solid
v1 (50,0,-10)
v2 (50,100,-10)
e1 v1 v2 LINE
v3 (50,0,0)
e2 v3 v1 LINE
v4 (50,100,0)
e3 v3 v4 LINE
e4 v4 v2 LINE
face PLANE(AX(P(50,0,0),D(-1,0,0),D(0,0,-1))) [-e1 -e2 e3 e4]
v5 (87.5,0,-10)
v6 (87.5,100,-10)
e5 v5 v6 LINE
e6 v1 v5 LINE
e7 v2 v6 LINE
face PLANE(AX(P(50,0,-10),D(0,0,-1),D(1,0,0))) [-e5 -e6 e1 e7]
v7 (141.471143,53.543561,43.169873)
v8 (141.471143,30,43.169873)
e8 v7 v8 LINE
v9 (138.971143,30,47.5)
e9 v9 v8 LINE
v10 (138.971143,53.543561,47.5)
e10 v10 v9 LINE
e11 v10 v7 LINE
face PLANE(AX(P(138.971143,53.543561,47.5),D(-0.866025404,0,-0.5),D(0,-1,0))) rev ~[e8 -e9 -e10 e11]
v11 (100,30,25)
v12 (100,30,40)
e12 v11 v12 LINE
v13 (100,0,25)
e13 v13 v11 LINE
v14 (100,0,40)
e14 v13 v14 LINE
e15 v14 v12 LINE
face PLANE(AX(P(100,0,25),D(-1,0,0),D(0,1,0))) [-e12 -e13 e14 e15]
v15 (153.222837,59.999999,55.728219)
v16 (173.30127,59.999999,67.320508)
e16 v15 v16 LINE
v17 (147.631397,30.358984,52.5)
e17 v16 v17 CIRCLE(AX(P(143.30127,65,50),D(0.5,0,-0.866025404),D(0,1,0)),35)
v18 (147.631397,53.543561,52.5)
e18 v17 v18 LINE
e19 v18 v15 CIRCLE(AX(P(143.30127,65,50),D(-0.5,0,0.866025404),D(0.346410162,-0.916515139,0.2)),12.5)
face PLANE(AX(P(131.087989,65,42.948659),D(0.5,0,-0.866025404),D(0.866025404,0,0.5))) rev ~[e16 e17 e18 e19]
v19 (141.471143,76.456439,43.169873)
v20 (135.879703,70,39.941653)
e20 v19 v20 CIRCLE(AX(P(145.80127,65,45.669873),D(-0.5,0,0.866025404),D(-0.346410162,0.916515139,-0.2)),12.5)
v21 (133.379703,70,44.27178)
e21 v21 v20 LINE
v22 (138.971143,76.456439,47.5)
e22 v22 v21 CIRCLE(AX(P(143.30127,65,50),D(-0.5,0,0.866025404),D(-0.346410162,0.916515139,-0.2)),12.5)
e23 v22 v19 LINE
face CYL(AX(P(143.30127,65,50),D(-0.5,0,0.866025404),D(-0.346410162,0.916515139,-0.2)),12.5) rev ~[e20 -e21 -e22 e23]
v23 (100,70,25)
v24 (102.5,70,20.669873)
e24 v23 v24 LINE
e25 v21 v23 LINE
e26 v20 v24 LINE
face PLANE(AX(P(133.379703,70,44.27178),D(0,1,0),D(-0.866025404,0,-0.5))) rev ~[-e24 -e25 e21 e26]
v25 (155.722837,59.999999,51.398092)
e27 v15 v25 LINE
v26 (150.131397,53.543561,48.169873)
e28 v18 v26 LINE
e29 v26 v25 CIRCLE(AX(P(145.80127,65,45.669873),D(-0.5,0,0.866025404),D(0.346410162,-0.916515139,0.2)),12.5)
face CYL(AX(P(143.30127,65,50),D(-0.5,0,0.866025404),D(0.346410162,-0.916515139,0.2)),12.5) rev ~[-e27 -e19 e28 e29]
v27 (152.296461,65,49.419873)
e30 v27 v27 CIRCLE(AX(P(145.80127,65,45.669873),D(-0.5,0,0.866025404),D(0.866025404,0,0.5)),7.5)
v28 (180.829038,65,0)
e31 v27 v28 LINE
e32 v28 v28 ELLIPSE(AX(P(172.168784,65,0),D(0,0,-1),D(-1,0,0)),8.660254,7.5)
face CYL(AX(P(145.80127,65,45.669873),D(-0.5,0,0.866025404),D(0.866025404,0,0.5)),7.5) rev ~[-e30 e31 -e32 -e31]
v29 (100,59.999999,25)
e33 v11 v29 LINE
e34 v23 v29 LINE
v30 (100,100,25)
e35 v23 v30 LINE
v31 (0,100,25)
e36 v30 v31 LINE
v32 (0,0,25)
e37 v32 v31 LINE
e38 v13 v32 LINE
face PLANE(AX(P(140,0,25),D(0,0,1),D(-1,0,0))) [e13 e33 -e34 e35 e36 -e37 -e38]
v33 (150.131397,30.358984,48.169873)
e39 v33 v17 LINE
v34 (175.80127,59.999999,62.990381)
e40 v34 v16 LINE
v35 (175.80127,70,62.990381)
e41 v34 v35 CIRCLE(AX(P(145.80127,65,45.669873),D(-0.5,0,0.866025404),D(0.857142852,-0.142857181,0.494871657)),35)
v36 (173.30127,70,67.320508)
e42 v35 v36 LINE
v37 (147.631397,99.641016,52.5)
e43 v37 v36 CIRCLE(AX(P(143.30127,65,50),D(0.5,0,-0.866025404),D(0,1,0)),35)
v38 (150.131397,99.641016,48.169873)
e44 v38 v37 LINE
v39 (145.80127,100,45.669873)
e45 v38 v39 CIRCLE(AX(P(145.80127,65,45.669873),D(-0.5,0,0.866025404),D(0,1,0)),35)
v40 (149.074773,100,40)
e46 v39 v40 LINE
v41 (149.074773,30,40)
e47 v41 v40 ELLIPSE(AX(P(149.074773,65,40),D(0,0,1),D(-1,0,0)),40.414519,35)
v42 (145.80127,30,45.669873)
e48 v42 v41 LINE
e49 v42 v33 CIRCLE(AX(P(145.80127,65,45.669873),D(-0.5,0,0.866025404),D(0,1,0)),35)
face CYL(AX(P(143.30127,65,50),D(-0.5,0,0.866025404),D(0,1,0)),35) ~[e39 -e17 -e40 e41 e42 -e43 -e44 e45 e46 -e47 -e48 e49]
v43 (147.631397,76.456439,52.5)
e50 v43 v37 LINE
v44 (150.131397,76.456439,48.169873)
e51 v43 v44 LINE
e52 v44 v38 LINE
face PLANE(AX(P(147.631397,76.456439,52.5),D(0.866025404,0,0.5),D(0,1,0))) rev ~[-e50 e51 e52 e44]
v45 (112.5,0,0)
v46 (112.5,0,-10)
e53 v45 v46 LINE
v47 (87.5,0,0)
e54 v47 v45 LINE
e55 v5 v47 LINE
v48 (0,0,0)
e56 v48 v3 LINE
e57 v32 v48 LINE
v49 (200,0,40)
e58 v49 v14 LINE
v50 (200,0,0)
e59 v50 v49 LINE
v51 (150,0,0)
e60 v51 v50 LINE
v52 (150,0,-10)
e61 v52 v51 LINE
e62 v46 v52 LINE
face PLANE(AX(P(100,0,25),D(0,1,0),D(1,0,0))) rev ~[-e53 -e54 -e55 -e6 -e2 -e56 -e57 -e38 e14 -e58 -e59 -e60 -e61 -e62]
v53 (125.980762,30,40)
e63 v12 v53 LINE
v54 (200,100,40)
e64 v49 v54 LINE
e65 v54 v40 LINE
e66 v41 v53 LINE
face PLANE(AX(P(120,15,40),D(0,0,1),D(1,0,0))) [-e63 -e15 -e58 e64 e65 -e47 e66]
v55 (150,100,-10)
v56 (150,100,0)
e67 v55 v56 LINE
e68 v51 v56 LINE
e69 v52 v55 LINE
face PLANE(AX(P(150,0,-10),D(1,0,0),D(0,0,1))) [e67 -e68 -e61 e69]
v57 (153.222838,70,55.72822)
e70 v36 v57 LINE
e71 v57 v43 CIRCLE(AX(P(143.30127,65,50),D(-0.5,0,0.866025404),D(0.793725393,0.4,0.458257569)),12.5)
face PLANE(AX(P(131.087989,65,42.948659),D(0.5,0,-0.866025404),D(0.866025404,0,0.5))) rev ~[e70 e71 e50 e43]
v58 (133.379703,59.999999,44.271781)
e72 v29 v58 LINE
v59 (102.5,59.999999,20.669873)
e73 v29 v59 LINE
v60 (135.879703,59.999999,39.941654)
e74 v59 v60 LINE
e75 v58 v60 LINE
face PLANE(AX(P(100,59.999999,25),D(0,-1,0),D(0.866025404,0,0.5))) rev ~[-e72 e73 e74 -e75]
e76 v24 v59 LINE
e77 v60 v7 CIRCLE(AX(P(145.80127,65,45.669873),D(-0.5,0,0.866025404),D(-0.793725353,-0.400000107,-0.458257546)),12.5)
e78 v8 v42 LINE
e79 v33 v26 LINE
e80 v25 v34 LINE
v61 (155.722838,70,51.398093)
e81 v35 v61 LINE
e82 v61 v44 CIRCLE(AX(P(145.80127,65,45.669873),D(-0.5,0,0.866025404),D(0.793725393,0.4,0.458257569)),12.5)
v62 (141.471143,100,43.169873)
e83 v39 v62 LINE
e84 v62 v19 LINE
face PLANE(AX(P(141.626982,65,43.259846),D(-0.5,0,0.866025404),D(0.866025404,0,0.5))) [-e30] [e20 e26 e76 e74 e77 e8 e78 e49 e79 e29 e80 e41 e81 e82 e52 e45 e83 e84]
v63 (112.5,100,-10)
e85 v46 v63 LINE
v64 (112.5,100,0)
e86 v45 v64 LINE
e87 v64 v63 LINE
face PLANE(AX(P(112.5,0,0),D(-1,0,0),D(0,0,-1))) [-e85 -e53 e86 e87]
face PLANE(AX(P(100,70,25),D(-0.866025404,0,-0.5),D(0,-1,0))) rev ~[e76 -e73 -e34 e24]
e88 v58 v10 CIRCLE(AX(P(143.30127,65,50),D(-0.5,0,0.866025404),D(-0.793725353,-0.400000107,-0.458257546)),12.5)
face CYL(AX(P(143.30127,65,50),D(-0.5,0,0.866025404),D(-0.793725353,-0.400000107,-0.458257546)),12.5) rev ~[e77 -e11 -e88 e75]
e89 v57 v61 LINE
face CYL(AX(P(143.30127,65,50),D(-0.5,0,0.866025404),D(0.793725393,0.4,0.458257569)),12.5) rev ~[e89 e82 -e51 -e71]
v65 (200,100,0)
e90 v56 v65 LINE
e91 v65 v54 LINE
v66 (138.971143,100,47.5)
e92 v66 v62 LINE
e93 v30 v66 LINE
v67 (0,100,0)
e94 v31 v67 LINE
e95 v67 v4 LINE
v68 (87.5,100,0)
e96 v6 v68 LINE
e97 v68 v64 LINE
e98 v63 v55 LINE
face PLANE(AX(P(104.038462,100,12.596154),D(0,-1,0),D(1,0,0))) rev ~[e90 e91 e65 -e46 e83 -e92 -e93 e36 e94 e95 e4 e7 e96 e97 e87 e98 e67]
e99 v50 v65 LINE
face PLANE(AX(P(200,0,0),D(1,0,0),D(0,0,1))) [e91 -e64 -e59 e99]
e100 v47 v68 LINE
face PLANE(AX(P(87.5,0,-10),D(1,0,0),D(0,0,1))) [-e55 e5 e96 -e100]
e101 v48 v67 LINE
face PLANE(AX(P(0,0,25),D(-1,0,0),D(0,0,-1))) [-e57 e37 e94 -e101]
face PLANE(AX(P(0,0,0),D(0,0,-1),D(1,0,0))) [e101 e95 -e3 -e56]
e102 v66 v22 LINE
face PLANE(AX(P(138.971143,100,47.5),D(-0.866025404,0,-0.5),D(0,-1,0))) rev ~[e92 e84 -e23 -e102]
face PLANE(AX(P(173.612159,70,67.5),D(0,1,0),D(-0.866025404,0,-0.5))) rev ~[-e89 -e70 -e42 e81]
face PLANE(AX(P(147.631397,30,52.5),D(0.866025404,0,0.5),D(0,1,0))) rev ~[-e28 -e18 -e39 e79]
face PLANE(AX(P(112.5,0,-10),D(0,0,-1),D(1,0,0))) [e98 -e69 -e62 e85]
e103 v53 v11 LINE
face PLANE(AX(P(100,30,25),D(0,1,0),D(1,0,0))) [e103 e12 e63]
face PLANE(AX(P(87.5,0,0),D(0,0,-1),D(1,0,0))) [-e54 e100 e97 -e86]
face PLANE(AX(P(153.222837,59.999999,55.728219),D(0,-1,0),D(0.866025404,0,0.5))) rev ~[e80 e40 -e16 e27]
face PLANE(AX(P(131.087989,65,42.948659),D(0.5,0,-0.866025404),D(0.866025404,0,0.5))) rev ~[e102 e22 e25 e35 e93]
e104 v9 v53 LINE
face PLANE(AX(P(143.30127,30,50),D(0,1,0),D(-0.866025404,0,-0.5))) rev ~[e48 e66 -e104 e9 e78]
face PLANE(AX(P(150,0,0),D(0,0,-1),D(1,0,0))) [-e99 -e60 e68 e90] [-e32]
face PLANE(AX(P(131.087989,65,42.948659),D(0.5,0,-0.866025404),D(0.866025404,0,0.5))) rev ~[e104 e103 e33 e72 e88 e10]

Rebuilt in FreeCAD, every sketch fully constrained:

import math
import FreeCAD as App
import Part
import Sketcher

V = App.Vector
Q = App.Units.Quantity


def add_polygon(sketch, points):
    """Adds a closed chain of lines whose ends are joined by coincident constraints."""
    first, n = sketch.GeometryCount, len(points)
    for a, b in zip(points, points[1:] + points[:1]):
        sketch.addGeometry(Part.LineSegment(App.Vector(*a, 0), App.Vector(*b, 0)), False)
    for i in range(n):
        sketch.addConstraint(Sketcher.Constraint("Coincident", first + i, 2, first + (i + 1) % n, 1))

doc = App.newDocument("Part")
body = doc.addObject("PartDesign::Body", "Body")

# Sketch on XZ plane
sketch1 = body.newObject("Sketcher::SketchObject", "Sketch")
sketch1.AttachmentSupport = (doc.getObject("XZ_Plane"), [""])
sketch1.MapMode = "FlatFace"
add_polygon(sketch1, [(0, 25), (0, 0), (50, 0), (50, -10), (88, -10), (88, 0), (112, 0), (112, -10), (150, -10), (150, 0), (200, 0), (200, 40), (140, 40), (140, 25)])  # lines 0-13
sketch1.addConstraint(Sketcher.Constraint("Vertical", 0))
sketch1.addConstraint(Sketcher.Constraint("Horizontal", 1))
sketch1.addConstraint(Sketcher.Constraint("Vertical", 2))
sketch1.addConstraint(Sketcher.Constraint("Horizontal", 3))
sketch1.addConstraint(Sketcher.Constraint("Vertical", 4))
sketch1.addConstraint(Sketcher.Constraint("Horizontal", 5))
sketch1.addConstraint(Sketcher.Constraint("Vertical", 6))
sketch1.addConstraint(Sketcher.Constraint("Horizontal", 7))
sketch1.addConstraint(Sketcher.Constraint("Vertical", 8))
sketch1.addConstraint(Sketcher.Constraint("Horizontal", 9))
sketch1.addConstraint(Sketcher.Constraint("Vertical", 10))
sketch1.addConstraint(Sketcher.Constraint("Horizontal", 11))
sketch1.addConstraint(Sketcher.Constraint("Vertical", 12))
sketch1.addConstraint(Sketcher.Constraint("Horizontal", 13))
sketch1.addConstraint(Sketcher.Constraint("Coincident", 0, 2, -1, 1))
sketch1.addConstraint(Sketcher.Constraint("PointOnObject", 4, 2, -1))
sketch1.addConstraint(Sketcher.Constraint("PointOnObject", 8, 2, -1))
sketch1.addConstraint(Sketcher.Constraint("Horizontal", 3, 2, 6, 2))
sketch1.addConstraint(Sketcher.Constraint("Equal", 3, 7))
sketch1.addConstraint(Sketcher.Constraint("Equal", 1, 9))
sketch1.addConstraint(Sketcher.Constraint("Equal", 5, 0))
sketch1.addConstraint(Sketcher.Constraint("DistanceX", 1, 1, 1, 2, Q("50 mm")))
sketch1.addConstraint(Sketcher.Constraint("DistanceX", 5, 1, 5, 2, Q("25 mm")))
sketch1.addConstraint(Sketcher.Constraint("DistanceX", 11, 2, 11, 1, Q("60 mm")))
sketch1.addConstraint(Sketcher.Constraint("DistanceX", 13, 2, 13, 1, Q("140 mm")))
sketch1.addConstraint(Sketcher.Constraint("DistanceY", 2, 2, 2, 1, Q("10 mm")))
sketch1.addConstraint(Sketcher.Constraint("DistanceY", 10, 1, 10, 2, Q("40 mm")))
pad1 = body.newObject("PartDesign::Pad", "Pad")
pad1.Profile = sketch1
pad1.Length = 100
pad1.Reversed = True

# Sketch on an angled plane
sketch2 = body.newObject("Sketcher::SketchObject", "Sketch001")
sketch2.Placement = App.Placement(V(14.174682, 0, -24.55127), App.Rotation(V(0.866025404, 0, 0.5), V(0, -1, 0), V(0.5, 0, -0.866025404), "ZXY"))
sketch2.addGeometry(Part.LineSegment(V(99, -30, 0), V(99, -100, 0)), False)
sketch2.addGeometry(Part.LineSegment(V(99, -100, 0), V(149, -100, 0)), False)
sketch2.addGeometry(Part.ArcOfCircle(Part.Circle(V(149, -65, 0), V(0, 0, 1), 35), math.radians(-90), math.radians(90)), False)
sketch2.addGeometry(Part.LineSegment(V(149, -30, 0), V(99, -30, 0)), False)
sketch2.addConstraint(Sketcher.Constraint("Coincident", 0, 2, 1, 1))
sketch2.addConstraint(Sketcher.Constraint("Tangent", 1, 2, 2, 1))
sketch2.addConstraint(Sketcher.Constraint("Tangent", 2, 2, 3, 1))
sketch2.addConstraint(Sketcher.Constraint("Coincident", 3, 2, 0, 1))
sketch2.addConstraint(Sketcher.Constraint("Vertical", 0))
sketch2.addConstraint(Sketcher.Constraint("Horizontal", 1))
sketch2.addConstraint(Sketcher.Constraint("Horizontal", 3))
sketch2.addConstraint(Sketcher.Constraint("Radius", 2, Q("35 mm")))
sketch2.addConstraint(Sketcher.Constraint("DistanceX", 1, 1, 1, 2, Q("50 mm")))
sketch2.addConstraint(Sketcher.Constraint("DistanceY", 2, 3, -1, 1, Q("65 mm")))
sketch2.addConstraint(Sketcher.Constraint("DistanceX", -1, 1, 2, 3, Q("149.10254 mm")))
pad2 = body.newObject("PartDesign::Pad", "Pad001")
pad2.Profile = sketch2
pad2.Length = 40

# Sketch on an angled plane
sketch3 = body.newObject("Sketcher::SketchObject", "Sketch002")
sketch3.Placement = App.Placement(V(14.174682, 0, -24.55127), App.Rotation(V(0.866025404, 0, 0.5), V(0, 1, 0), V(-0.5, 0, 0.866025404), "ZXY"))
sketch3.addGeometry(Part.LineSegment(V(154, 100, 0), V(144, 100, 0)), False)
sketch3.addGeometry(Part.LineSegment(V(144, 100, 0), V(144, 76, 0)), False)
sketch3.addGeometry(Part.ArcOfCircle(Part.Circle(V(149, 65, 0), V(0, 0, 1), 12), math.radians(114), math.radians(156)), False)
sketch3.addGeometry(Part.LineSegment(V(138, 70, 0), V(99, 70, 0)), False)
sketch3.addGeometry(Part.LineSegment(V(99, 70, 0), V(99, 60, 0)), False)
sketch3.addGeometry(Part.LineSegment(V(99, 60, 0), V(138, 60, 0)), False)
sketch3.addGeometry(Part.ArcOfCircle(Part.Circle(V(149, 65, 0), V(0, 0, 1), 12), math.radians(-156), math.radians(-114)), False)
sketch3.addGeometry(Part.LineSegment(V(144, 54, 0), V(144, 30, 0)), False)
sketch3.addGeometry(Part.LineSegment(V(144, 30, 0), V(154, 30, 0)), False)
sketch3.addGeometry(Part.LineSegment(V(154, 30, 0), V(154, 54, 0)), False)
sketch3.addGeometry(Part.ArcOfCircle(Part.Circle(V(149, 65, 0), V(0, 0, 1), 12), math.radians(-66), math.radians(-24)), False)
sketch3.addGeometry(Part.LineSegment(V(161, 60, 0), V(184, 60, 0)), False)
sketch3.addGeometry(Part.LineSegment(V(184, 60, 0), V(184, 70, 0)), False)
sketch3.addGeometry(Part.LineSegment(V(184, 70, 0), V(161, 70, 0)), False)
sketch3.addGeometry(Part.ArcOfCircle(Part.Circle(V(149, 65, 0), V(0, 0, 1), 12), math.radians(24), math.radians(66)), False)
sketch3.addGeometry(Part.LineSegment(V(154, 76, 0), V(154, 100, 0)), False)
sketch3.addConstraint(Sketcher.Constraint("Coincident", 0, 2, 1, 1))
sketch3.addConstraint(Sketcher.Constraint("Coincident", 1, 2, 2, 1))
sketch3.addConstraint(Sketcher.Constraint("Coincident", 2, 2, 3, 1))
sketch3.addConstraint(Sketcher.Constraint("Coincident", 3, 2, 4, 1))
sketch3.addConstraint(Sketcher.Constraint("Coincident", 4, 2, 5, 1))
sketch3.addConstraint(Sketcher.Constraint("Coincident", 5, 2, 6, 1))
sketch3.addConstraint(Sketcher.Constraint("Coincident", 6, 2, 7, 1))
sketch3.addConstraint(Sketcher.Constraint("Coincident", 7, 2, 8, 1))
sketch3.addConstraint(Sketcher.Constraint("Coincident", 8, 2, 9, 1))
sketch3.addConstraint(Sketcher.Constraint("Coincident", 9, 2, 10, 1))
sketch3.addConstraint(Sketcher.Constraint("Coincident", 10, 2, 11, 1))
sketch3.addConstraint(Sketcher.Constraint("Coincident", 11, 2, 12, 1))
sketch3.addConstraint(Sketcher.Constraint("Coincident", 12, 2, 13, 1))
sketch3.addConstraint(Sketcher.Constraint("Coincident", 13, 2, 14, 1))
sketch3.addConstraint(Sketcher.Constraint("Coincident", 14, 2, 15, 1))
sketch3.addConstraint(Sketcher.Constraint("Coincident", 15, 2, 0, 1))
sketch3.addConstraint(Sketcher.Constraint("Horizontal", 0))
sketch3.addConstraint(Sketcher.Constraint("Vertical", 1))
sketch3.addConstraint(Sketcher.Constraint("Horizontal", 3))
sketch3.addConstraint(Sketcher.Constraint("Vertical", 4))
sketch3.addConstraint(Sketcher.Constraint("Horizontal", 5))
sketch3.addConstraint(Sketcher.Constraint("Vertical", 7))
sketch3.addConstraint(Sketcher.Constraint("Horizontal", 8))
sketch3.addConstraint(Sketcher.Constraint("Vertical", 9))
sketch3.addConstraint(Sketcher.Constraint("Horizontal", 11))
sketch3.addConstraint(Sketcher.Constraint("Vertical", 12))
sketch3.addConstraint(Sketcher.Constraint("Horizontal", 13))
sketch3.addConstraint(Sketcher.Constraint("Vertical", 15))
sketch3.addConstraint(Sketcher.Constraint("Coincident", 6, 3, 2, 3))
sketch3.addConstraint(Sketcher.Constraint("Coincident", 10, 3, 2, 3))
sketch3.addConstraint(Sketcher.Constraint("Coincident", 14, 3, 2, 3))
sketch3.addConstraint(Sketcher.Constraint("Equal", 2, 6))
sketch3.addConstraint(Sketcher.Constraint("Equal", 6, 10))
sketch3.addConstraint(Sketcher.Constraint("Equal", 10, 14))
sketch3.addConstraint(Sketcher.Constraint("Horizontal", 6, 2, 9, 2))
sketch3.addConstraint(Sketcher.Constraint("Horizontal", 5, 2, 10, 2))
sketch3.addConstraint(Sketcher.Constraint("Horizontal", 3, 2, 12, 2))
sketch3.addConstraint(Sketcher.Constraint("Horizontal", 1, 2, 14, 2))
sketch3.addConstraint(Sketcher.Constraint("Vertical", 2, 2, 5, 2))
sketch3.addConstraint(Sketcher.Constraint("Vertical", 1, 2, 6, 2))
sketch3.addConstraint(Sketcher.Constraint("Equal", 13, 1))
sketch3.addConstraint(Sketcher.Constraint("Equal", 8, 4))
sketch3.addConstraint(Sketcher.Constraint("Equal", 1, 7))
sketch3.addConstraint(Sketcher.Constraint("Radius", 2, Q("12.5 mm")))
sketch3.addConstraint(Sketcher.Constraint("DistanceX", 0, 2, 0, 1, Q("10 mm")))
sketch3.addConstraint(Sketcher.Constraint("DistanceY", -1, 1, 2, 3, Q("65 mm")))
sketch3.addConstraint(Sketcher.Constraint("DistanceY", -1, 1, 0, 2, Q("100 mm")))
sketch3.addConstraint(Sketcher.Constraint("DistanceX", 3, 2, 1, 2, Q("45 mm")))
sketch3.addConstraint(Sketcher.Constraint("DistanceX", -1, 1, 2, 2, Q("137.646101 mm")))
pocket1 = body.newObject("PartDesign::Pocket", "Pocket")
pocket1.Profile = sketch3
pocket1.Length = 5

# Sketch on an angled plane
sketch4 = body.newObject("Sketcher::SketchObject", "Sketch003")
sketch4.Placement = App.Placement(V(16.674682, 0, -28.881397), App.Rotation(V(0.866025404, 0, 0.5), V(0, 1, 0), V(-0.5, 0, 0.866025404), "ZXY"))
sketch4.addGeometry(Part.Circle(V(149, 65, 0), V(0, 0, 1), 8), False)
sketch4.addConstraint(Sketcher.Constraint("Diameter", 0, Q("15 mm")))
sketch4.addConstraint(Sketcher.Constraint("DistanceY", -1, 1, 0, 3, Q("65 mm")))
sketch4.addConstraint(Sketcher.Constraint("DistanceX", -1, 1, 0, 3, Q("149.10254 mm")))
pocket2 = body.newObject("PartDesign::Pocket", "Pocket001")
pocket2.Profile = sketch4
pocket2.Type = "ThroughAll"

# Sketch on XY plane
sketch5 = body.newObject("Sketcher::SketchObject", "Sketch004")
sketch5.AttachmentSupport = (doc.getObject("XY_Plane"), [""])
sketch5.MapMode = "FlatFace"
sketch5.AttachmentOffset = App.Placement(V(0, 0, 25), App.Rotation())
add_polygon(sketch5, [(100, 30), (100, 0), (140, 0), (140, 30)])  # lines 0-3
sketch5.addConstraint(Sketcher.Constraint("Vertical", 0))
sketch5.addConstraint(Sketcher.Constraint("Horizontal", 1))
sketch5.addConstraint(Sketcher.Constraint("Vertical", 2))
sketch5.addConstraint(Sketcher.Constraint("Horizontal", 3))
sketch5.addConstraint(Sketcher.Constraint("PointOnObject", 0, 2, -1))
sketch5.addConstraint(Sketcher.Constraint("DistanceX", 1, 1, 1, 2, Q("40 mm")))
sketch5.addConstraint(Sketcher.Constraint("DistanceY", 0, 2, 0, 1, Q("30 mm")))
sketch5.addConstraint(Sketcher.Constraint("DistanceX", -1, 1, 0, 2, Q("100 mm")))
pad3 = body.newObject("PartDesign::Pad", "Pad002")
pad3.Profile = sketch5
pad3.Length = 15

doc.recompute()
